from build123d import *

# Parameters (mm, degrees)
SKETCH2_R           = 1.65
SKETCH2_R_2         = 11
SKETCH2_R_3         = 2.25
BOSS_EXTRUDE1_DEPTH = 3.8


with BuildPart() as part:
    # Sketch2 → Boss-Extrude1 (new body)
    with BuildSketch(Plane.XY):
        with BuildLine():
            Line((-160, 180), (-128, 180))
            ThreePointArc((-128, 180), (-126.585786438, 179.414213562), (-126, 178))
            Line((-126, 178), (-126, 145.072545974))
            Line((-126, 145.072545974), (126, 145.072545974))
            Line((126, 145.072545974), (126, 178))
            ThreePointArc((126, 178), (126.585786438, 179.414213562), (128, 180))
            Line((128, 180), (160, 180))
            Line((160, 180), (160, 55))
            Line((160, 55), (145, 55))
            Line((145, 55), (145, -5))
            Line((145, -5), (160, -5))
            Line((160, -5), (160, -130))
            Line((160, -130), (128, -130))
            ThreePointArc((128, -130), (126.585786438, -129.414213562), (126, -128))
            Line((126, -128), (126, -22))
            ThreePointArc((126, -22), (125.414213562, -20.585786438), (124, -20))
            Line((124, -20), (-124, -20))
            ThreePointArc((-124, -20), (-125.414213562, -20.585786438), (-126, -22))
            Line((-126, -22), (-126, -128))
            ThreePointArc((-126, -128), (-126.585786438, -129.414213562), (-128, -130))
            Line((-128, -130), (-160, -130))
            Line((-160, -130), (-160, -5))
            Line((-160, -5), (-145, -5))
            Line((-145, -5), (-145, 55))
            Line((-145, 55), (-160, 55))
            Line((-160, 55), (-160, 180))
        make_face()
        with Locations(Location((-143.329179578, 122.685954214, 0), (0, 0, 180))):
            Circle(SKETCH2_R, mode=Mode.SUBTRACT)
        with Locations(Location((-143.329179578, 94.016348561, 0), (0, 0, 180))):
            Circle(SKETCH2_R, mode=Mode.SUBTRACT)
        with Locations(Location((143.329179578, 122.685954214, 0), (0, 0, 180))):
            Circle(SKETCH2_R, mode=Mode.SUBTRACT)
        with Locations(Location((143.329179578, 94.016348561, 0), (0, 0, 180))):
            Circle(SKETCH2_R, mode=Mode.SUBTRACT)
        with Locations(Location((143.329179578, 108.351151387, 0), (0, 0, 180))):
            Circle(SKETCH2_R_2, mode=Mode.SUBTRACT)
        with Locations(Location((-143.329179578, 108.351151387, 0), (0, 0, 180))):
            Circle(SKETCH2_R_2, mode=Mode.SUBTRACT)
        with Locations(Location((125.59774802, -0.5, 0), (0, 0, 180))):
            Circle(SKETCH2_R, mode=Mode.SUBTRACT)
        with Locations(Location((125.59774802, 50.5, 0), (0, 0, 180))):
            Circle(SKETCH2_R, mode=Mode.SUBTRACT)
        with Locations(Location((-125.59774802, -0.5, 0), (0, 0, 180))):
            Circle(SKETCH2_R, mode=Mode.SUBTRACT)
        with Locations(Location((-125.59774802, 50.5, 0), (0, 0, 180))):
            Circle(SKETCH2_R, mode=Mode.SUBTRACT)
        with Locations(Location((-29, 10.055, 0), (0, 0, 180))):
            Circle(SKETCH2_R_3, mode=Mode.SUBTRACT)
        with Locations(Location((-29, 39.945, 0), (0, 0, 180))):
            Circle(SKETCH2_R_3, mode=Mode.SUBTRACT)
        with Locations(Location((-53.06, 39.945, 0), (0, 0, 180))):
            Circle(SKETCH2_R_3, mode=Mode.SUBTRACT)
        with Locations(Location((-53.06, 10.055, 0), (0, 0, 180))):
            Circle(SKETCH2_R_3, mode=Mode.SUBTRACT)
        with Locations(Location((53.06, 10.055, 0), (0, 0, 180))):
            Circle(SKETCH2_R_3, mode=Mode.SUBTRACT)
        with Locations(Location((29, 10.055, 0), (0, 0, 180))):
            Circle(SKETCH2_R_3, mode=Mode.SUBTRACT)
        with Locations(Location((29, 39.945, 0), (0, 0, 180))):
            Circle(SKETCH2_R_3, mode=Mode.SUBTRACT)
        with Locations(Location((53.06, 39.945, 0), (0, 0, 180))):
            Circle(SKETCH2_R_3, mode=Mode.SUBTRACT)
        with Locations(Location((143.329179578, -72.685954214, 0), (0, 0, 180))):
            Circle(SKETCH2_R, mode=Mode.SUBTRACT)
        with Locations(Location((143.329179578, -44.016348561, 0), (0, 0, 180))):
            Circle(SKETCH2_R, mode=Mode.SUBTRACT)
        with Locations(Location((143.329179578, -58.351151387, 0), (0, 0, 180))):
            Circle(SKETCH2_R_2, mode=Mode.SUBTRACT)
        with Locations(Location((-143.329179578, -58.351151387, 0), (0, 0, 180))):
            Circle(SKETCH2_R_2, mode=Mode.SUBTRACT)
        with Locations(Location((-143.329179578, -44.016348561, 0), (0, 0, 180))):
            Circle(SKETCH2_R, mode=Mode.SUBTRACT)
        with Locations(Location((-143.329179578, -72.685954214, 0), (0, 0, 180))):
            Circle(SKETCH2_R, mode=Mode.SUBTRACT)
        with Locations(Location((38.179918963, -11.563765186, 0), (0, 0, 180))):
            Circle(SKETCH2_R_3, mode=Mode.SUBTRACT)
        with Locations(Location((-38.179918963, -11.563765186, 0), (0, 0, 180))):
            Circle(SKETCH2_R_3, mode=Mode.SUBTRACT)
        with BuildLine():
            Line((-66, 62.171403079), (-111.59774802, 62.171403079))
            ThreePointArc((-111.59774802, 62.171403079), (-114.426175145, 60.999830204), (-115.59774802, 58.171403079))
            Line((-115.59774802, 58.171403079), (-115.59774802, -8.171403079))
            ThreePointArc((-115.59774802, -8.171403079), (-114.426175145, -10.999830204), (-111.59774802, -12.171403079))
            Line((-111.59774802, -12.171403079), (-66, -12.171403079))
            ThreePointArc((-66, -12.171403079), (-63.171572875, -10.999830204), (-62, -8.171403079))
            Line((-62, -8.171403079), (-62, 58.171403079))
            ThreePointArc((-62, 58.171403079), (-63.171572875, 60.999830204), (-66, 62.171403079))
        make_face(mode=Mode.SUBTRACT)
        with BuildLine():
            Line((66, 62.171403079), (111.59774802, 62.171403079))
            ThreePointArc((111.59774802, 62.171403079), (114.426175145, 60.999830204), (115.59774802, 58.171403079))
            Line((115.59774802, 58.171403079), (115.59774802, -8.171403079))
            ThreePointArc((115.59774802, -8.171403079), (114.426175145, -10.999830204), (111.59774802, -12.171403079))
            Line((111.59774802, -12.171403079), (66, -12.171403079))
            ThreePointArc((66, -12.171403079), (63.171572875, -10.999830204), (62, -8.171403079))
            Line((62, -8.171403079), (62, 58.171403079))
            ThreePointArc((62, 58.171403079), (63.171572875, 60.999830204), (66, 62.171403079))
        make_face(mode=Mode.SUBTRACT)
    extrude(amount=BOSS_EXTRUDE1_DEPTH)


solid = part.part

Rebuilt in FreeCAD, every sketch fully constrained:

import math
import FreeCAD as App
import Part
import Sketcher
Q = App.Units.Quantity

doc = App.newDocument("Part")
body = doc.addObject("PartDesign::Body", "Body")

sketch1 = body.newObject("Sketcher::SketchObject", "Sketch")
sketch1.AttachmentSupport = (doc.getObject("XY_Plane"), [""])
sketch1.MapMode = "FlatFace"
sketch1.addGeometry(Part.LineSegment(App.Vector(-128, 180, 0), App.Vector(-160, 180, 0)), False)
sketch1.addGeometry(Part.LineSegment(App.Vector(-160, 180, 0), App.Vector(-160, 55, 0)), False)
sketch1.addGeometry(Part.LineSegment(App.Vector(-160, 55, 0), App.Vector(-145, 55, 0)), False)
sketch1.addGeometry(Part.LineSegment(App.Vector(-145, 55, 0), App.Vector(-145, -5, 0)), False)
sketch1.addGeometry(Part.LineSegment(App.Vector(-145, -5, 0), App.Vector(-160, -5, 0)), False)
sketch1.addGeometry(Part.LineSegment(App.Vector(-160, -5, 0), App.Vector(-160, -130, 0)), False)
sketch1.addGeometry(Part.LineSegment(App.Vector(-160, -130, 0), App.Vector(-128, -130, 0)), False)
sketch1.addGeometry(Part.ArcOfCircle(Part.Circle(App.Vector(-128, -128, 0), App.Vector(0, 0, 1), 2), math.radians(-90), math.radians(0)), False)
sketch1.addGeometry(Part.LineSegment(App.Vector(-126, -128, 0), App.Vector(-126, -22, 0)), False)
sketch1.addGeometry(Part.ArcOfCircle(Part.Circle(App.Vector(-124, -22, 0), App.Vector(0, 0, 1), 2), math.radians(90), math.radians(180)), False)
sketch1.addGeometry(Part.LineSegment(App.Vector(-124, -20, 0), App.Vector(124, -20, 0)), False)
sketch1.addGeometry(Part.ArcOfCircle(Part.Circle(App.Vector(124, -22, 0), App.Vector(0, 0, 1), 2), math.radians(0), math.radians(90)), False)
sketch1.addGeometry(Part.LineSegment(App.Vector(126, -22, 0), App.Vector(126, -128, 0)), False)
sketch1.addGeometry(Part.ArcOfCircle(Part.Circle(App.Vector(128, -128, 0), App.Vector(0, 0, 1), 2), math.radians(-180), math.radians(-90)), False)
sketch1.addGeometry(Part.LineSegment(App.Vector(128, -130, 0), App.Vector(160, -130, 0)), False)
sketch1.addGeometry(Part.LineSegment(App.Vector(160, -130, 0), App.Vector(160, -5, 0)), False)
sketch1.addGeometry(Part.LineSegment(App.Vector(160, -5, 0), App.Vector(145, -5, 0)), False)
sketch1.addGeometry(Part.LineSegment(App.Vector(145, -5, 0), App.Vector(145, 55, 0)), False)
sketch1.addGeometry(Part.LineSegment(App.Vector(145, 55, 0), App.Vector(160, 55, 0)), False)
sketch1.addGeometry(Part.LineSegment(App.Vector(160, 55, 0), App.Vector(160, 180, 0)), False)
sketch1.addGeometry(Part.LineSegment(App.Vector(160, 180, 0), App.Vector(128, 180, 0)), False)
sketch1.addGeometry(Part.ArcOfCircle(Part.Circle(App.Vector(128, 178, 0), App.Vector(0, 0, 1), 2), math.radians(90), math.radians(180)), False)
sketch1.addGeometry(Part.LineSegment(App.Vector(126, 178, 0), App.Vector(126, 145.1, 0)), False)
sketch1.addGeometry(Part.LineSegment(App.Vector(126, 145.1, 0), App.Vector(-126, 145.1, 0)), False)
sketch1.addGeometry(Part.LineSegment(App.Vector(-126, 145.1, 0), App.Vector(-126, 178, 0)), False)
sketch1.addGeometry(Part.ArcOfCircle(Part.Circle(App.Vector(-128, 178, 0), App.Vector(0, 0, 1), 2), math.radians(0), math.radians(90)), False)
sketch1.addGeometry(Part.Circle(App.Vector(143.3, -72.7, 0), App.Vector(0, 0, 1), 1.6), False)
sketch1.addGeometry(Part.Circle(App.Vector(143.3, -58.4, 0), App.Vector(0, 0, 1), 11), False)
sketch1.addGeometry(Part.Circle(App.Vector(143.3, -44, 0), App.Vector(0, 0, 1), 1.6), False)
sketch1.addGeometry(Part.Circle(App.Vector(125.6, -0.5, 0), App.Vector(0, 0, 1), 1.6), False)
sketch1.addGeometry(Part.Circle(App.Vector(38.2, -11.6, 0), App.Vector(0, 0, 1), 2.2), False)
sketch1.addGeometry(Part.Circle(App.Vector(53.1, 10.1, 0), App.Vector(0, 0, 1), 2.2), False)
sketch1.addGeometry(Part.Circle(App.Vector(29, 10.1, 0), App.Vector(0, 0, 1), 2.2), False)
sketch1.addGeometry(Part.Circle(App.Vector(-143.3, -72.7, 0), App.Vector(0, 0, 1), 1.6), False)
sketch1.addGeometry(Part.Circle(App.Vector(-143.3, -58.4, 0), App.Vector(0, 0, 1), 11), False)
sketch1.addGeometry(Part.Circle(App.Vector(-143.3, -44, 0), App.Vector(0, 0, 1), 1.6), False)
sketch1.addGeometry(Part.Circle(App.Vector(-38.2, -11.6, 0), App.Vector(0, 0, 1), 2.2), False)
sketch1.addGeometry(Part.Circle(App.Vector(-29, 10.1, 0), App.Vector(0, 0, 1), 2.2), False)
sketch1.addGeometry(Part.Circle(App.Vector(-53.1, 10.1, 0), App.Vector(0, 0, 1), 2.2), False)
sketch1.addGeometry(Part.Circle(App.Vector(-125.6, -0.5, 0), App.Vector(0, 0, 1), 1.6), False)
sketch1.addGeometry(Part.LineSegment(App.Vector(66, 62.2, 0), App.Vector(111.6, 62.2, 0)), False)
sketch1.addGeometry(Part.ArcOfCircle(Part.Circle(App.Vector(111.6, 58.2, 0), App.Vector(0, 0, 1), 4), math.radians(0), math.radians(90)), False)
sketch1.addGeometry(Part.LineSegment(App.Vector(115.6, 58.2, 0), App.Vector(115.6, -8.2, 0)), False)
sketch1.addGeometry(Part.ArcOfCircle(Part.Circle(App.Vector(111.6, -8.2, 0), App.Vector(0, 0, 1), 4), math.radians(-90), math.radians(0)), False)
sketch1.addGeometry(Part.LineSegment(App.Vector(111.6, -12.2, 0), App.Vector(66, -12.2, 0)), False)
sketch1.addGeometry(Part.ArcOfCircle(Part.Circle(App.Vector(66, -8.2, 0), App.Vector(0, 0, 1), 4), math.radians(180), math.radians(270)), False)
sketch1.addGeometry(Part.LineSegment(App.Vector(62, -8.2, 0), App.Vector(62, 58.2, 0)), False)
sketch1.addGeometry(Part.ArcOfCircle(Part.Circle(App.Vector(66, 58.2, 0), App.Vector(0, 0, 1), 4), math.radians(90), math.radians(180)), False)
sketch1.addGeometry(Part.Circle(App.Vector(125.6, 50.5, 0), App.Vector(0, 0, 1), 1.6), False)
sketch1.addGeometry(Part.Circle(App.Vector(53.1, 39.9, 0), App.Vector(0, 0, 1), 2.2), False)
sketch1.addGeometry(Part.Circle(App.Vector(29, 39.9, 0), App.Vector(0, 0, 1), 2.2), False)
sketch1.addGeometry(Part.Circle(App.Vector(143.3, 94, 0), App.Vector(0, 0, 1), 1.6), False)
sketch1.addGeometry(Part.Circle(App.Vector(143.3, 108.4, 0), App.Vector(0, 0, 1), 11), False)
sketch1.addGeometry(Part.Circle(App.Vector(143.3, 122.7, 0), App.Vector(0, 0, 1), 1.6), False)
sketch1.addGeometry(Part.Circle(App.Vector(-29, 39.9, 0), App.Vector(0, 0, 1), 2.2), False)
sketch1.addGeometry(Part.Circle(App.Vector(-53.1, 39.9, 0), App.Vector(0, 0, 1), 2.2), False)
sketch1.addGeometry(Part.ArcOfCircle(Part.Circle(App.Vector(-66, 58.2, 0), App.Vector(0, 0, 1), 4), math.radians(0), math.radians(90)), False)
sketch1.addGeometry(Part.LineSegment(App.Vector(-62, 58.2, 0), App.Vector(-62, -8.2, 0)), False)
sketch1.addGeometry(Part.ArcOfCircle(Part.Circle(App.Vector(-66, -8.2, 0), App.Vector(0, 0, 1), 4), math.radians(-90), math.radians(0)), False)
sketch1.addGeometry(Part.LineSegment(App.Vector(-66, -12.2, 0), App.Vector(-111.6, -12.2, 0)), False)
sketch1.addGeometry(Part.ArcOfCircle(Part.Circle(App.Vector(-111.6, -8.2, 0), App.Vector(0, 0, 1), 4), math.radians(180), math.radians(270)), False)
sketch1.addGeometry(Part.LineSegment(App.Vector(-115.6, -8.2, 0), App.Vector(-115.6, 58.2, 0)), False)
sketch1.addGeometry(Part.ArcOfCircle(Part.Circle(App.Vector(-111.6, 58.2, 0), App.Vector(0, 0, 1), 4), math.radians(90), math.radians(180)), False)
sketch1.addGeometry(Part.LineSegment(App.Vector(-111.6, 62.2, 0), App.Vector(-66, 62.2, 0)), False)
sketch1.addGeometry(Part.Circle(App.Vector(-125.6, 50.5, 0), App.Vector(0, 0, 1), 1.6), False)
sketch1.addGeometry(Part.Circle(App.Vector(-143.3, 94, 0), App.Vector(0, 0, 1), 1.6), False)
sketch1.addGeometry(Part.Circle(App.Vector(-143.3, 108.4, 0), App.Vector(0, 0, 1), 11), False)
sketch1.addGeometry(Part.Circle(App.Vector(-143.3, 122.7, 0), App.Vector(0, 0, 1), 1.6), False)
sketch1.addConstraint(Sketcher.Constraint("Coincident", 0, 2, 1, 1))
sketch1.addConstraint(Sketcher.Constraint("Coincident", 1, 2, 2, 1))
sketch1.addConstraint(Sketcher.Constraint("Coincident", 2, 2, 3, 1))
sketch1.addConstraint(Sketcher.Constraint("Coincident", 3, 2, 4, 1))
sketch1.addConstraint(Sketcher.Constraint("Coincident", 4, 2, 5, 1))
sketch1.addConstraint(Sketcher.Constraint("Coincident", 5, 2, 6, 1))
sketch1.addConstraint(Sketcher.Constraint("Tangent", 6, 2, 7, 1))
sketch1.addConstraint(Sketcher.Constraint("Tangent", 7, 2, 8, 1))
sketch1.addConstraint(Sketcher.Constraint("Tangent", 8, 2, 9, 2))
sketch1.addConstraint(Sketcher.Constraint("Tangent", 9, 1, 10, 1))
sketch1.addConstraint(Sketcher.Constraint("Tangent", 10, 2, 11, 2))
sketch1.addConstraint(Sketcher.Constraint("Tangent", 11, 1, 12, 1))
sketch1.addConstraint(Sketcher.Constraint("Tangent", 12, 2, 13, 1))
sketch1.addConstraint(Sketcher.Constraint("Tangent", 13, 2, 14, 1))
sketch1.addConstraint(Sketcher.Constraint("Coincident", 14, 2, 15, 1))
sketch1.addConstraint(Sketcher.Constraint("Coincident", 15, 2, 16, 1))
sketch1.addConstraint(Sketcher.Constraint("Coincident", 16, 2, 17, 1))
sketch1.addConstraint(Sketcher.Constraint("Coincident", 17, 2, 18, 1))
sketch1.addConstraint(Sketcher.Constraint("Coincident", 18, 2, 19, 1))
sketch1.addConstraint(Sketcher.Constraint("Coincident", 19, 2, 20, 1))
sketch1.addConstraint(Sketcher.Constraint("Tangent", 20, 2, 21, 1))
sketch1.addConstraint(Sketcher.Constraint("Tangent", 21, 2, 22, 1))
sketch1.addConstraint(Sketcher.Constraint("Coincident", 22, 2, 23, 1))
sketch1.addConstraint(Sketcher.Constraint("Coincident", 23, 2, 24, 1))
sketch1.addConstraint(Sketcher.Constraint("Tangent", 24, 2, 25, 1))
sketch1.addConstraint(Sketcher.Constraint("Tangent", 25, 2, 0, 1))
sketch1.addConstraint(Sketcher.Constraint("Tangent", 40, 2, 41, 2))
sketch1.addConstraint(Sketcher.Constraint("Tangent", 41, 1, 42, 1))
sketch1.addConstraint(Sketcher.Constraint("Tangent", 42, 2, 43, 2))
sketch1.addConstraint(Sketcher.Constraint("Tangent", 43, 1, 44, 1))
sketch1.addConstraint(Sketcher.Constraint("Tangent", 44, 2, 45, 2))
sketch1.addConstraint(Sketcher.Constraint("Tangent", 45, 1, 46, 1))
sketch1.addConstraint(Sketcher.Constraint("Tangent", 46, 2, 47, 2))
sketch1.addConstraint(Sketcher.Constraint("Tangent", 47, 1, 40, 1))
sketch1.addConstraint(Sketcher.Constraint("Tangent", 56, 1, 57, 1))
sketch1.addConstraint(Sketcher.Constraint("Tangent", 57, 2, 58, 2))
sketch1.addConstraint(Sketcher.Constraint("Tangent", 58, 1, 59, 1))
sketch1.addConstraint(Sketcher.Constraint("Tangent", 59, 2, 60, 2))
sketch1.addConstraint(Sketcher.Constraint("Tangent", 60, 1, 61, 1))
sketch1.addConstraint(Sketcher.Constraint("Tangent", 61, 2, 62, 2))
sketch1.addConstraint(Sketcher.Constraint("Tangent", 62, 1, 63, 1))
sketch1.addConstraint(Sketcher.Constraint("Tangent", 63, 2, 56, 2))
sketch1.addConstraint(Sketcher.Constraint("Horizontal", 0))
sketch1.addConstraint(Sketcher.Constraint("Vertical", 1))
sketch1.addConstraint(Sketcher.Constraint("Horizontal", 2))
sketch1.addConstraint(Sketcher.Constraint("Vertical", 3))
sketch1.addConstraint(Sketcher.Constraint("Horizontal", 4))
sketch1.addConstraint(Sketcher.Constraint("Vertical", 5))
sketch1.addConstraint(Sketcher.Constraint("Horizontal", 6))
sketch1.addConstraint(Sketcher.Constraint("Vertical", 8))
sketch1.addConstraint(Sketcher.Constraint("Horizontal", 10))
sketch1.addConstraint(Sketcher.Constraint("Vertical", 12))
sketch1.addConstraint(Sketcher.Constraint("Horizontal", 14))
sketch1.addConstraint(Sketcher.Constraint("Vertical", 15))
sketch1.addConstraint(Sketcher.Constraint("Horizontal", 16))
sketch1.addConstraint(Sketcher.Constraint("Vertical", 17))
sketch1.addConstraint(Sketcher.Constraint("Horizontal", 18))
sketch1.addConstraint(Sketcher.Constraint("Vertical", 19))
sketch1.addConstraint(Sketcher.Constraint("Horizontal", 20))
sketch1.addConstraint(Sketcher.Constraint("Vertical", 22))
sketch1.addConstraint(Sketcher.Constraint("Horizontal", 23))
sketch1.addConstraint(Sketcher.Constraint("Vertical", 24))
sketch1.addConstraint(Sketcher.Constraint("Horizontal", 40))
sketch1.addConstraint(Sketcher.Constraint("Vertical", 42))
sketch1.addConstraint(Sketcher.Constraint("Horizontal", 44))
sketch1.addConstraint(Sketcher.Constraint("Vertical", 46))
sketch1.addConstraint(Sketcher.Constraint("Vertical", 57))
sketch1.addConstraint(Sketcher.Constraint("Horizontal", 59))
sketch1.addConstraint(Sketcher.Constraint("Vertical", 61))
sketch1.addConstraint(Sketcher.Constraint("Horizontal", 63))
sketch1.addConstraint(Sketcher.Constraint("Equal", 7, 9))
sketch1.addConstraint(Sketcher.Constraint("Equal", 9, 11))
sketch1.addConstraint(Sketcher.Constraint("Equal", 11, 13))
sketch1.addConstraint(Sketcher.Constraint("Equal", 13, 21))
sketch1.addConstraint(Sketcher.Constraint("Equal", 21, 25))
sketch1.addConstraint(Sketcher.Constraint("Equal", 26, 28))
sketch1.addConstraint(Sketcher.Constraint("Equal", 28, 29))
sketch1.addConstraint(Sketcher.Constraint("Equal", 30, 31))
sketch1.addConstraint(Sketcher.Constraint("Equal", 31, 32))
sketch1.addConstraint(Sketcher.Constraint("Equal", 29, 33))
sketch1.addConstraint(Sketcher.Constraint("Equal", 27, 34))
sketch1.addConstraint(Sketcher.Constraint("Equal", 33, 35))
sketch1.addConstraint(Sketcher.Constraint("Equal", 32, 36))
sketch1.addConstraint(Sketcher.Constraint("Equal", 36, 37))
sketch1.addConstraint(Sketcher.Constraint("Equal", 37, 38))
sketch1.addConstraint(Sketcher.Constraint("Equal", 35, 39))
sketch1.addConstraint(Sketcher.Constraint("Equal", 41, 43))
sketch1.addConstraint(Sketcher.Constraint("Equal", 43, 45))
sketch1.addConstraint(Sketcher.Constraint("Equal", 45, 47))
sketch1.addConstraint(Sketcher.Constraint("Equal", 39, 48))
sketch1.addConstraint(Sketcher.Constraint("Equal", 38, 49))
sketch1.addConstraint(Sketcher.Constraint("Equal", 49, 50))
sketch1.addConstraint(Sketcher.Constraint("Equal", 48, 51))
sketch1.addConstraint(Sketcher.Constraint("Equal", 34, 52))
sketch1.addConstraint(Sketcher.Constraint("Equal", 51, 53))
sketch1.addConstraint(Sketcher.Constraint("Equal", 50, 54))
sketch1.addConstraint(Sketcher.Constraint("Equal", 54, 55))
sketch1.addConstraint(Sketcher.Constraint("Equal", 47, 56))
sketch1.addConstraint(Sketcher.Constraint("Equal", 56, 58))
sketch1.addConstraint(Sketcher.Constraint("Equal", 58, 60))
sketch1.addConstraint(Sketcher.Constraint("Equal", 60, 62))
sketch1.addConstraint(Sketcher.Constraint("Equal", 53, 64))
sketch1.addConstraint(Sketcher.Constraint("Equal", 64, 65))
sketch1.addConstraint(Sketcher.Constraint("Equal", 52, 66))
sketch1.addConstraint(Sketcher.Constraint("Equal", 65, 67))
sketch1.addConstraint(Sketcher.Constraint("Symmetric", 7, 3, 13, 3, -2))
sketch1.addConstraint(Sketcher.Constraint("Symmetric", 21, 3, 25, 3, -2))
sketch1.addConstraint(Sketcher.Constraint("Symmetric", 26, 3, 33, 3, -2))
sketch1.addConstraint(Sketcher.Constraint("Symmetric", 27, 3, 34, 3, -2))
sketch1.addConstraint(Sketcher.Constraint("Symmetric", 28, 3, 35, 3, -2))
sketch1.addConstraint(Sketcher.Constraint("Symmetric", 30, 3, 36, 3, -2))
sketch1.addConstraint(Sketcher.Constraint("Symmetric", 32, 3, 37, 3, -2))
sketch1.addConstraint(Sketcher.Constraint("Symmetric", 31, 3, 38, 3, -2))
sketch1.addConstraint(Sketcher.Constraint("Symmetric", 29, 3, 39, 3, -2))
sketch1.addConstraint(Sketcher.Constraint("Symmetric", 50, 3, 54, 3, -2))
sketch1.addConstraint(Sketcher.Constraint("Symmetric", 49, 3, 55, 3, -2))
sketch1.addConstraint(Sketcher.Constraint("Symmetric", 47, 3, 56, 3, -2))
sketch1.addConstraint(Sketcher.Constraint("Symmetric", 43, 3, 60, 3, -2))
sketch1.addConstraint(Sketcher.Constraint("Symmetric", 48, 3, 64, 3, -2))
sketch1.addConstraint(Sketcher.Constraint("Symmetric", 51, 3, 65, 3, -2))
sketch1.addConstraint(Sketcher.Constraint("Symmetric", 52, 3, 66, 3, -2))
sketch1.addConstraint(Sketcher.Constraint("Symmetric", 53, 3, 67, 3, -2))
sketch1.addConstraint(Sketcher.Constraint("Symmetric", 4, 2, 15, 2, -2))
sketch1.addConstraint(Sketcher.Constraint("Symmetric", 2, 2, 17, 2, -2))
sketch1.addConstraint(Sketcher.Constraint("Horizontal", 31, 3, 32, 3))
sketch1.addConstraint(Sketcher.Constraint("Horizontal", 49, 3, 50, 3))
sketch1.addConstraint(Sketcher.Constraint("Vertical", 13, 3, 21, 3))
sketch1.addConstraint(Sketcher.Constraint("Vertical", 26, 3, 27, 3))
sketch1.addConstraint(Sketcher.Constraint("Vertical", 27, 3, 28, 3))
sketch1.addConstraint(Sketcher.Constraint("Vertical", 29, 3, 48, 3))
sketch1.addConstraint(Sketcher.Constraint("Vertical", 31, 3, 49, 3))
sketch1.addConstraint(Sketcher.Constraint("Vertical", 32, 3, 50, 3))
sketch1.addConstraint(Sketcher.Constraint("Vertical", 28, 3, 51, 3))
sketch1.addConstraint(Sketcher.Constraint("Vertical", 51, 3, 52, 3))
sketch1.addConstraint(Sketcher.Constraint("Vertical", 52, 3, 53, 3))
sketch1.addConstraint(Sketcher.Constraint("Vertical", 1, 2, 4, 2))
sketch1.addConstraint(Sketcher.Constraint("Vertical", 15, 2, 18, 2))
sketch1.addConstraint(Sketcher.Constraint("Equal", 1, 5))
sketch1.addConstraint(Sketcher.Constraint("Diameter", 27, Q("22 mm")))
sketch1.addConstraint(Sketcher.Constraint("Radius", 7, Q("2 mm")))
sketch1.addConstraint(Sketcher.Constraint("Radius", 41, Q("4 mm")))
sketch1.addConstraint(Sketcher.Constraint("Diameter", 26, Q("3.3 mm")))
sketch1.addConstraint(Sketcher.Constraint("Diameter", 30, Q("4.5 mm")))
sketch1.addConstraint(Sketcher.Constraint("DistanceX", 0, 2, 0, 1, Q("32 mm")))
sketch1.addConstraint(Sketcher.Constraint("DistanceX", 2, 1, 2, 2, Q("15 mm")))
sketch1.addConstraint(Sketcher.Constraint("DistanceX", 10, 1, 10, 2, Q("248 mm")))
sketch1.addConstraint(Sketcher.Constraint("DistanceY", 1, 2, 1, 1, Q("125 mm")))
sketch1.addConstraint(Sketcher.Constraint("DistanceY", 3, 2, 3, 1, Q("60 mm")))
sketch1.addConstraint(Sketcher.Constraint("DistanceY", 8, 1, 8, 2, Q("106 mm")))
sketch1.addConstraint(Sketcher.Constraint("DistanceY", 7, 3, -1, 1, Q("128 mm")))
sketch1.addConstraint(Sketcher.Constraint("DistanceX", -1, 1, 32, 3, Q("29 mm")))
sketch1.addConstraint(Sketcher.Constraint("DistanceX", -1, 1, 45, 3, Q("66 mm")))
sketch1.addConstraint(Sketcher.Constraint("DistanceY", 29, 3, -1, 1, Q("0.5 mm")))
sketch1.addConstraint(Sketcher.Constraint("DistanceY", -1, 1, 48, 3, Q("50.5 mm")))
sketch1.addConstraint(Sketcher.Constraint("DistanceX", -1, 1, 31, 3, Q("53.06 mm")))
sketch1.addConstraint(Sketcher.Constraint("DistanceY", -1, 1, 31, 3, Q("10.055 mm")))
sketch1.addConstraint(Sketcher.Constraint("DistanceY", -1, 1, 49, 3, Q("39.945 mm")))
sketch1.addConstraint(Sketcher.Constraint("DistanceX", 40, 1, 40, 2, Q("45.597748 mm")))
sketch1.addConstraint(Sketcher.Constraint("DistanceY", 22, 2, 22, 1, Q("32.927454 mm")))
sketch1.addConstraint(Sketcher.Constraint("DistanceY", 42, 2, 42, 1, Q("66.342806 mm")))
sketch1.addConstraint(Sketcher.Constraint("DistanceX", -1, 1, 26, 3, Q("143.32918 mm")))
sketch1.addConstraint(Sketcher.Constraint("DistanceY", 27, 3, -1, 1, Q("58.351151 mm")))
sketch1.addConstraint(Sketcher.Constraint("DistanceY", 28, 3, -1, 1, Q("44.016349 mm")))
sketch1.addConstraint(Sketcher.Constraint("DistanceX", -1, 1, 29, 3, Q("125.597748 mm")))
sketch1.addConstraint(Sketcher.Constraint("DistanceX", -1, 1, 30, 3, Q("38.179919 mm")))
sketch1.addConstraint(Sketcher.Constraint("DistanceY", -1, 1, 51, 3, Q("94.016349 mm")))
sketch1.addConstraint(Sketcher.Constraint("DistanceY", -1, 1, 52, 3, Q("108.351151 mm")))
sketch1.addConstraint(Sketcher.Constraint("DistanceY", 26, 3, -1, 1, Q("72.685954 mm")))
sketch1.addConstraint(Sketcher.Constraint("DistanceY", 30, 3, -1, 1, Q("11.563765 mm")))
sketch1.addConstraint(Sketcher.Constraint("DistanceY", -1, 1, 41, 3, Q("58.171403 mm")))
sketch1.addConstraint(Sketcher.Constraint("DistanceY", -1, 1, 53, 3, Q("122.685954 mm")))
pad1 = body.newObject("PartDesign::Pad", "Pad")
pad1.Profile = sketch1
pad1.Length = 3.8

doc.recompute()
